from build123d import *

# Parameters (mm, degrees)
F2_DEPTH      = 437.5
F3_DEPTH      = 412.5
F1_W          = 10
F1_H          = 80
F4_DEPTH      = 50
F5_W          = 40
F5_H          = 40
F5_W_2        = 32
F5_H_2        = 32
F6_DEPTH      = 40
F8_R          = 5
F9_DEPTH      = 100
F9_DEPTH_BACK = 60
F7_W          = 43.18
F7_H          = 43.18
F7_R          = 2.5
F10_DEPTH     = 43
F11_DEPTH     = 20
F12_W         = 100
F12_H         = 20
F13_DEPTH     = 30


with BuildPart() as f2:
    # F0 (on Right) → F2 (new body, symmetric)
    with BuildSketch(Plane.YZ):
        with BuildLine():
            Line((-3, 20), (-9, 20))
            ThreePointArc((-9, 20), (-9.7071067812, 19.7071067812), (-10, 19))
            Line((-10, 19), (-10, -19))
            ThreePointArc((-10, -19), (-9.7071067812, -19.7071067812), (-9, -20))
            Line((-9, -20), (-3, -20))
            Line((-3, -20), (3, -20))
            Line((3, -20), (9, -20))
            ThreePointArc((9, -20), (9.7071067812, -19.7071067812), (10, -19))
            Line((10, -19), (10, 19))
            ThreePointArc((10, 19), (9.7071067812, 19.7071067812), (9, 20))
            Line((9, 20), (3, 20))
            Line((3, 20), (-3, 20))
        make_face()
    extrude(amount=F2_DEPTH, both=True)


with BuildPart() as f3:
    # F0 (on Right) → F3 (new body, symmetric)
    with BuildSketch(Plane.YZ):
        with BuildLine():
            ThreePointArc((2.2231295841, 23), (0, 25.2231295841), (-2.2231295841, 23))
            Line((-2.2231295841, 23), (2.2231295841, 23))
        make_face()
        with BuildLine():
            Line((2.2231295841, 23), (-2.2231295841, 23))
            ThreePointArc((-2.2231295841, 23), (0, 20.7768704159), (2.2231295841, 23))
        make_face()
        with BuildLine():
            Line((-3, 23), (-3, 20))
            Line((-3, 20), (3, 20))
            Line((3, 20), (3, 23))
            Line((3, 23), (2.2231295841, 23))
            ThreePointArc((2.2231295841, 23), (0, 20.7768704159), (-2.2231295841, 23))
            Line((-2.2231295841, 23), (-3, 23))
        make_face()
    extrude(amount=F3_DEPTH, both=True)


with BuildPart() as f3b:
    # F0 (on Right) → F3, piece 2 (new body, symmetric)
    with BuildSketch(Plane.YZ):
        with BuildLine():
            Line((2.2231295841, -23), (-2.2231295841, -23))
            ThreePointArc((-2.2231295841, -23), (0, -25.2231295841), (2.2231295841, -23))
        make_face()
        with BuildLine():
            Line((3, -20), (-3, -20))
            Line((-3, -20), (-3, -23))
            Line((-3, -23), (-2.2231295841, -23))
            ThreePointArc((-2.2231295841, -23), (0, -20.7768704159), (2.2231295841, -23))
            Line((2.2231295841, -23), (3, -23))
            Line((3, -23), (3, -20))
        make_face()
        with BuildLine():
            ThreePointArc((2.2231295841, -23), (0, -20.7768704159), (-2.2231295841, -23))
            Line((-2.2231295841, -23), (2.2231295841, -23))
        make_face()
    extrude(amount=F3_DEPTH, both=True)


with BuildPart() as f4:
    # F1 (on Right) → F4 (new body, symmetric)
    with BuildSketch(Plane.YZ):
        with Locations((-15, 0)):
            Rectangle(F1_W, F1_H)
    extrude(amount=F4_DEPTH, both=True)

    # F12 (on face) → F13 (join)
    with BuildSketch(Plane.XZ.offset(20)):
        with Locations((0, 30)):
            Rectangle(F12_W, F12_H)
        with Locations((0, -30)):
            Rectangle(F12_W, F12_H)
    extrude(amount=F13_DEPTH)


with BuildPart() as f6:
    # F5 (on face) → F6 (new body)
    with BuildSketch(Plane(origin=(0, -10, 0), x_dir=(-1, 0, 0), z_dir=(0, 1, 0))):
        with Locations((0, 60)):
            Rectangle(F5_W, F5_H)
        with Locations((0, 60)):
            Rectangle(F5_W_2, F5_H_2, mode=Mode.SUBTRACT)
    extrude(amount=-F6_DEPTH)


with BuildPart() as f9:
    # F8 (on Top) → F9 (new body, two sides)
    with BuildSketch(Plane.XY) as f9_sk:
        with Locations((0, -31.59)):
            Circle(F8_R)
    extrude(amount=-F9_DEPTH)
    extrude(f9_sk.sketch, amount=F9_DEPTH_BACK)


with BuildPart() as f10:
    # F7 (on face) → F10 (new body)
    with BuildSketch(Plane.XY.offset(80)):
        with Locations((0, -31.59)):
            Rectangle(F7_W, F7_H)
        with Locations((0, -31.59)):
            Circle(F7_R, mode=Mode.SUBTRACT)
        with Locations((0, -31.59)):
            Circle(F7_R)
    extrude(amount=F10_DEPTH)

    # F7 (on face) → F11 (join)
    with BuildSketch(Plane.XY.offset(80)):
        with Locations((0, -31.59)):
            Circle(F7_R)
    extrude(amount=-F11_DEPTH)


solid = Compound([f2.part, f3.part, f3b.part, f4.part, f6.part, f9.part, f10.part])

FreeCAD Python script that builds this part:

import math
import FreeCAD as App
import Part
import Sketcher

V = App.Vector


def add_polygon(sketch, points):
    """Adds a closed chain of lines whose ends are joined by coincident constraints."""
    first, n = sketch.GeometryCount, len(points)
    for a, b in zip(points, points[1:] + points[:1]):
        sketch.addGeometry(Part.LineSegment(App.Vector(*a, 0), App.Vector(*b, 0)), False)
    for i in range(n):
        sketch.addConstraint(Sketcher.Constraint("Coincident", first + i, 2, first + (i + 1) % n, 1))

doc = App.newDocument("Part")
params = doc.addObject("Spreadsheet::Sheet", "Params")
for row, (alias, value) in enumerate([
    ("sketch1_radius", "1 mm"),
    ("sketch1_width", "18 mm"),
    ("sketch1_height", "38 mm"),
    ("pad1_length", "875 mm"),
    ("sketch2_width", "6 mm"),
    ("sketch2_height", "3 mm"),
    ("pad2_length", "825 mm"),
    ("sketch3_width", "6 mm"),
    ("sketch3_height", "3 mm"),
    ("pad3_length", "825 mm"),
    ("sketch4_width", "10 mm"),
    ("sketch4_height", "80 mm"),
    ("pad4_length", "100 mm"),
    ("sketch5_width", "100 mm"),
    ("sketch5_height", "20 mm"),
    ("pad5_length", "30 mm"),
    ("sketch6_width", "40 mm"),
    ("sketch6_width2", "32 mm"),
    ("pad6_length", "40 mm"),
    ("sketch7_diameter", "10 mm"),
    ("pad7_length", "100 mm"),
    ("pad7_length2", "60 mm"),
    ("sketch8_width", "43.18 mm"),
    ("pad8_length", "43 mm"),
    ("sketch9_diameter", "5 mm"),
    ("pad9_length", "20 mm"),
], start=1):
    params.set(f"A{row}", alias)
    params.set(f"B{row}", "=" + value)
    params.setAlias(f"B{row}", alias)

body = doc.addObject("PartDesign::Body", "Body")

# Sketch on YZ plane
sketch1 = body.newObject("Sketcher::SketchObject", "Sketch")
sketch1.AttachmentSupport = (doc.getObject("YZ_Plane"), [""])
sketch1.MapMode = "FlatFace"
sketch1.addGeometry([
    Part.ArcOfCircle(Part.Circle(V(-9, 19, 0), V(0, 0, 1), 1), math.radians(90), math.radians(180)),  # 0
    Part.LineSegment(V(-10, 19, 0), V(-10, -19, 0)),  # 1
    Part.ArcOfCircle(Part.Circle(V(-9, -19, 0), V(0, 0, 1), 1), math.radians(180), math.radians(270)),  # 2
    Part.LineSegment(V(-9, -20, 0), V(9, -20, 0)),  # 3
    Part.ArcOfCircle(Part.Circle(V(9, -19, 0), V(0, 0, 1), 1), math.radians(-90), math.radians(0)),  # 4
    Part.LineSegment(V(10, -19, 0), V(10, 19, 0)),  # 5
    Part.ArcOfCircle(Part.Circle(V(9, 19, 0), V(0, 0, 1), 1), math.radians(0), math.radians(90)),  # 6
    Part.LineSegment(V(9, 20, 0), V(-9, 20, 0)),  # 7
], False)
sketch1.addConstraint([
    Sketcher.Constraint("Tangent", 0, 2, 1, 1),
    Sketcher.Constraint("Tangent", 1, 2, 2, 1),
    Sketcher.Constraint("Tangent", 2, 2, 3, 1),
    Sketcher.Constraint("Tangent", 3, 2, 4, 1),
    Sketcher.Constraint("Tangent", 4, 2, 5, 1),
    Sketcher.Constraint("Tangent", 5, 2, 6, 1),
    Sketcher.Constraint("Tangent", 6, 2, 7, 1),
    Sketcher.Constraint("Tangent", 7, 2, 0, 1),
    Sketcher.Constraint("Vertical", 1),
    Sketcher.Constraint("Horizontal", 3),
    Sketcher.Constraint("Vertical", 5),
    Sketcher.Constraint("Horizontal", 7),
    Sketcher.Constraint("Equal", 0, 2),
    Sketcher.Constraint("Equal", 2, 4),
    Sketcher.Constraint("Equal", 4, 6),
    Sketcher.Constraint("Symmetric", 0, 3, 4, 3, -1, 1),
    Sketcher.Constraint("Radius", 0, 1.0),
    Sketcher.Constraint("DistanceX", 3, 1, 3, 2, 18.0),
    Sketcher.Constraint("DistanceY", 1, 2, 1, 1, 38.0),
])
sketch1.setExpression("Constraints[16]", "Params.sketch1_radius")
sketch1.setExpression("Constraints[17]", "Params.sketch1_width")
sketch1.setExpression("Constraints[18]", "Params.sketch1_height")
pad1 = body.newObject("PartDesign::Pad", "Pad")
pad1.Profile = sketch1
pad1.setExpression("Length", "Params.pad1_length")
pad1.Midplane = True
body2 = doc.addObject("PartDesign::Body", "Body001")

# Sketch on YZ plane
sketch2 = body2.newObject("Sketcher::SketchObject", "Sketch001")
sketch2.AttachmentSupport = (doc.getObject("YZ_Plane001"), [""])
sketch2.MapMode = "FlatFace"
sketch2.addGeometry([
    Part.ArcOfCircle(Part.Circle(V(0, 23, 0), V(0, 0, 1), 2.2), math.radians(0), math.radians(180)),  # 0
    Part.LineSegment(V(-2.2, 23, 0), V(-3, 23, 0)),  # 1
    Part.LineSegment(V(-3, 23, 0), V(-3, 20, 0)),  # 2
    Part.LineSegment(V(-3, 20, 0), V(3, 20, 0)),  # 3
    Part.LineSegment(V(3, 20, 0), V(3, 23, 0)),  # 4
    Part.LineSegment(V(3, 23, 0), V(2.2, 23, 0)),  # 5
], False)
sketch2.addConstraint([
    Sketcher.Constraint("Coincident", 0, 2, 1, 1),
    Sketcher.Constraint("Coincident", 1, 2, 2, 1),
    Sketcher.Constraint("Coincident", 2, 2, 3, 1),
    Sketcher.Constraint("Coincident", 3, 2, 4, 1),
    Sketcher.Constraint("Coincident", 4, 2, 5, 1),
    Sketcher.Constraint("Coincident", 5, 2, 0, 1),
    Sketcher.Constraint("Horizontal", 1),
    Sketcher.Constraint("Vertical", 2),
    Sketcher.Constraint("Horizontal", 3),
    Sketcher.Constraint("Vertical", 4),
    Sketcher.Constraint("Horizontal", 5),
    Sketcher.Constraint("Symmetric", 1, 2, 4, 2, -2),
    Sketcher.Constraint("PointOnObject", 0, 3, -2),
    Sketcher.Constraint("DistanceX", 3, 1, 3, 2, 6.0),
    Sketcher.Constraint("DistanceY", 2, 2, 2, 1, 3.0),
    Sketcher.Constraint("DistanceY", -1, 1, 0, 3, 23.0),
    Sketcher.Constraint("DistanceY", -1, 1, 0, 2, 23.0),
    Sketcher.Constraint("Radius", 0, 2.22313),
])
sketch2.setExpression("Constraints[13]", "Params.sketch2_width")
sketch2.setExpression("Constraints[14]", "Params.sketch2_height")
pad2 = body2.newObject("PartDesign::Pad", "Pad001")
pad2.Profile = sketch2
pad2.setExpression("Length", "Params.pad2_length")
pad2.Midplane = True
body3 = doc.addObject("PartDesign::Body", "Body002")

# Sketch on YZ plane
sketch3 = body3.newObject("Sketcher::SketchObject", "Sketch002")
sketch3.AttachmentSupport = (doc.getObject("YZ_Plane002"), [""])
sketch3.MapMode = "FlatFace"
sketch3.addGeometry([
    Part.ArcOfCircle(Part.Circle(V(0, -23, 0), V(0, 0, 1), 2.2), math.radians(180), math.radians(360)),  # 0
    Part.LineSegment(V(2.2, -23, 0), V(3, -23, 0)),  # 1
    Part.LineSegment(V(3, -23, 0), V(3, -20, 0)),  # 2
    Part.LineSegment(V(3, -20, 0), V(-3, -20, 0)),  # 3
    Part.LineSegment(V(-3, -20, 0), V(-3, -23, 0)),  # 4
    Part.LineSegment(V(-3, -23, 0), V(-2.2, -23, 0)),  # 5
], False)
sketch3.addConstraint([
    Sketcher.Constraint("Coincident", 0, 2, 1, 1),
    Sketcher.Constraint("Coincident", 1, 2, 2, 1),
    Sketcher.Constraint("Coincident", 2, 2, 3, 1),
    Sketcher.Constraint("Coincident", 3, 2, 4, 1),
    Sketcher.Constraint("Coincident", 4, 2, 5, 1),
    Sketcher.Constraint("Coincident", 5, 2, 0, 1),
    Sketcher.Constraint("Horizontal", 1),
    Sketcher.Constraint("Vertical", 2),
    Sketcher.Constraint("Horizontal", 3),
    Sketcher.Constraint("Vertical", 4),
    Sketcher.Constraint("Horizontal", 5),
    Sketcher.Constraint("Symmetric", 1, 2, 4, 2, -2),
    Sketcher.Constraint("PointOnObject", 0, 3, -2),
    Sketcher.Constraint("DistanceX", 3, 2, 3, 1, 6.0),
    Sketcher.Constraint("DistanceY", 2, 1, 2, 2, 3.0),
    Sketcher.Constraint("DistanceY", 0, 3, -1, 1, 23.0),
    Sketcher.Constraint("DistanceY", 0, 2, -1, 1, 23.0),
    Sketcher.Constraint("Radius", 0, 2.22313),
])
sketch3.setExpression("Constraints[13]", "Params.sketch3_width")
sketch3.setExpression("Constraints[14]", "Params.sketch3_height")
pad3 = body3.newObject("PartDesign::Pad", "Pad002")
pad3.Profile = sketch3
pad3.setExpression("Length", "Params.pad3_length")
pad3.Midplane = True
body4 = doc.addObject("PartDesign::Body", "Body003")

# Sketch on YZ plane
sketch4 = body4.newObject("Sketcher::SketchObject", "Sketch003")
sketch4.AttachmentSupport = (doc.getObject("YZ_Plane003"), [""])
sketch4.MapMode = "FlatFace"
add_polygon(sketch4, [(-20, 40), (-20, -40), (-10, -40), (-10, 40)])  # lines 0-3
sketch4.addConstraint([
    Sketcher.Constraint("Vertical", 0),
    Sketcher.Constraint("Horizontal", 1),
    Sketcher.Constraint("Vertical", 2),
    Sketcher.Constraint("Horizontal", 3),
    Sketcher.Constraint("DistanceX", 1, 1, 1, 2, 10.0),
    Sketcher.Constraint("DistanceY", 0, 2, 0, 1, 80.0),
    Sketcher.Constraint("DistanceX", 0, 2, -1, 1, 20.0),
    Sketcher.Constraint("DistanceY", 0, 2, -1, 1, 40.0),
])
sketch4.setExpression("Constraints[8]", "Params.sketch4_width")
sketch4.setExpression("Constraints[9]", "Params.sketch4_height")
pad4 = body4.newObject("PartDesign::Pad", "Pad003")
pad4.Profile = sketch4
pad4.setExpression("Length", "Params.pad4_length")
pad4.Midplane = True

# Sketch on XZ plane
sketch5 = body4.newObject("Sketcher::SketchObject", "Sketch004")
sketch5.AttachmentSupport = (doc.getObject("XZ_Plane003"), [""])
sketch5.MapMode = "FlatFace"
sketch5.AttachmentOffset = App.Placement(V(0, 0, 20), App.Rotation())
add_polygon(sketch5, [(-50, 40), (-50, 20), (50, 20), (50, 40)])  # lines 0-3
add_polygon(sketch5, [(-50, -20), (-50, -40), (50, -40), (50, -20)])  # lines 4-7
sketch5.addConstraint([
    Sketcher.Constraint("Vertical", 0),
    Sketcher.Constraint("Horizontal", 1),
    Sketcher.Constraint("Vertical", 2),
    Sketcher.Constraint("Horizontal", 3),
    Sketcher.Constraint("Vertical", 4),
    Sketcher.Constraint("Horizontal", 5),
    Sketcher.Constraint("Vertical", 6),
    Sketcher.Constraint("Horizontal", 7),
    Sketcher.Constraint("Symmetric", 2, 2, 4, 2, -1, 1),
    Sketcher.Constraint("Symmetric", 0, 2, 6, 2, -1, 1),
    Sketcher.Constraint("Vertical", 3, 2, 4, 2),
    Sketcher.Constraint("DistanceX", 1, 1, 1, 2, 100.0),
    Sketcher.Constraint("DistanceY", 0, 2, 0, 1, 20.0),
    Sketcher.Constraint("DistanceY", -1, 1, 0, 2, 20.0),
])
sketch5.setExpression("Constraints[19]", "Params.sketch5_width")
sketch5.setExpression("Constraints[20]", "Params.sketch5_height")
pad5 = body4.newObject("PartDesign::Pad", "Pad004")
pad5.Profile = sketch5
pad5.setExpression("Length", "Params.pad5_length")
body5 = doc.addObject("PartDesign::Body", "Body004")

# Sketch on XZ plane
sketch6 = body5.newObject("Sketcher::SketchObject", "Sketch005")
sketch6.AttachmentSupport = (doc.getObject("XZ_Plane004"), [""])
sketch6.MapMode = "FlatFace"
sketch6.AttachmentOffset = App.Placement(V(0, 0, 10), App.Rotation())
add_polygon(sketch6, [(20, 80), (20, 40), (-20, 40), (-20, 80)])  # lines 0-3
add_polygon(sketch6, [(-16, 44), (16, 44), (16, 76), (-16, 76)])  # lines 4-7
sketch6.addConstraint([
    Sketcher.Constraint("Vertical", 0),
    Sketcher.Constraint("Horizontal", 1),
    Sketcher.Constraint("Vertical", 2),
    Sketcher.Constraint("Horizontal", 3),
    Sketcher.Constraint("Horizontal", 4),
    Sketcher.Constraint("Vertical", 5),
    Sketcher.Constraint("Horizontal", 6),
    Sketcher.Constraint("Vertical", 7),
    Sketcher.Constraint("Equal", 3, 0),
    Sketcher.Constraint("Equal", 6, 5),
    Sketcher.Constraint("DistanceX", 1, 2, 1, 1, 40.0),
    Sketcher.Constraint("DistanceX", 4, 1, 4, 2, 32.0),
    Sketcher.Constraint("DistanceX", -1, 1, 0, 2, 20.0),
    Sketcher.Constraint("DistanceY", -1, 1, 0, 2, 40.0),
    Sketcher.Constraint("DistanceX", -1, 1, 4, 2, 16.0),
    Sketcher.Constraint("DistanceY", -1, 1, 4, 2, 44.0),
])
sketch6.setExpression("Constraints[18]", "Params.sketch6_width")
sketch6.setExpression("Constraints[19]", "Params.sketch6_width2")
pad6 = body5.newObject("PartDesign::Pad", "Pad005")
pad6.Profile = sketch6
pad6.setExpression("Length", "Params.pad6_length")
body6 = doc.addObject("PartDesign::Body", "Body005")

# Sketch on XY plane
sketch7 = body6.newObject("Sketcher::SketchObject", "Sketch006")
sketch7.AttachmentSupport = (doc.getObject("XY_Plane005"), [""])
sketch7.MapMode = "FlatFace"
sketch7.addGeometry(Part.Circle(V(0, -32, 0), V(0, 0, 1), 5), False)
sketch7.addConstraint([
    Sketcher.Constraint("PointOnObject", 0, 3, -2),
    Sketcher.Constraint("Diameter", 0, 10.0),
    Sketcher.Constraint("DistanceY", 0, 3, -1, 1, 31.59),
])
sketch7.setExpression("Constraints[1]", "Params.sketch7_diameter")
pad7 = body6.newObject("PartDesign::Pad", "Pad006")
pad7.Profile = sketch7
pad7.Type = "TwoLengths"
pad7.setExpression("Length", "Params.pad7_length")
pad7.setExpression("Length2", "Params.pad7_length2")
pad7.Reversed = True
body7 = doc.addObject("PartDesign::Body", "Body006")

# Sketch on XY plane
sketch8 = body7.newObject("Sketcher::SketchObject", "Sketch007")
sketch8.AttachmentSupport = (doc.getObject("XY_Plane006"), [""])
sketch8.MapMode = "FlatFace"
sketch8.AttachmentOffset = App.Placement(V(0, 0, 80), App.Rotation())
add_polygon(sketch8, [(-22, -10), (-22, -53), (22, -53), (22, -10)])  # lines 0-3
sketch8.addConstraint([
    Sketcher.Constraint("Vertical", 0),
    Sketcher.Constraint("Horizontal", 1),
    Sketcher.Constraint("Vertical", 2),
    Sketcher.Constraint("Horizontal", 3),
    Sketcher.Constraint("Equal", 3, 0),
    Sketcher.Constraint("DistanceY", 2, 2, -1, 1, 10.0),
    Sketcher.Constraint("DistanceX", 1, 1, 1, 2, 43.18),
    Sketcher.Constraint("DistanceX", 0, 2, -1, 1, 21.59),
])
sketch8.setExpression("Constraints[10]", "Params.sketch8_width")
pad8 = body7.newObject("PartDesign::Pad", "Pad007")
pad8.Profile = sketch8
pad8.setExpression("Length", "Params.pad8_length")

# Sketch on XY plane
sketch9 = body7.newObject("Sketcher::SketchObject", "Sketch008")
sketch9.AttachmentSupport = (doc.getObject("XY_Plane006"), [""])
sketch9.MapMode = "FlatFace"
sketch9.AttachmentOffset = App.Placement(V(0, 0, 80), App.Rotation())
sketch9.addGeometry(Part.Circle(V(0, -31.6, 0), V(0, 0, 1), 2.5), False)
sketch9.addConstraint([
    Sketcher.Constraint("PointOnObject", 0, 3, -2),
    Sketcher.Constraint("Diameter", 0, 5.0),
    Sketcher.Constraint("DistanceY", 0, 3, -1, 1, 31.59),
])
sketch9.setExpression("Constraints[1]", "Params.sketch9_diameter")
pad9 = body7.newObject("PartDesign::Pad", "Pad008")
pad9.Profile = sketch9
pad9.setExpression("Length", "Params.pad9_length")
pad9.Reversed = True

doc.recompute()
